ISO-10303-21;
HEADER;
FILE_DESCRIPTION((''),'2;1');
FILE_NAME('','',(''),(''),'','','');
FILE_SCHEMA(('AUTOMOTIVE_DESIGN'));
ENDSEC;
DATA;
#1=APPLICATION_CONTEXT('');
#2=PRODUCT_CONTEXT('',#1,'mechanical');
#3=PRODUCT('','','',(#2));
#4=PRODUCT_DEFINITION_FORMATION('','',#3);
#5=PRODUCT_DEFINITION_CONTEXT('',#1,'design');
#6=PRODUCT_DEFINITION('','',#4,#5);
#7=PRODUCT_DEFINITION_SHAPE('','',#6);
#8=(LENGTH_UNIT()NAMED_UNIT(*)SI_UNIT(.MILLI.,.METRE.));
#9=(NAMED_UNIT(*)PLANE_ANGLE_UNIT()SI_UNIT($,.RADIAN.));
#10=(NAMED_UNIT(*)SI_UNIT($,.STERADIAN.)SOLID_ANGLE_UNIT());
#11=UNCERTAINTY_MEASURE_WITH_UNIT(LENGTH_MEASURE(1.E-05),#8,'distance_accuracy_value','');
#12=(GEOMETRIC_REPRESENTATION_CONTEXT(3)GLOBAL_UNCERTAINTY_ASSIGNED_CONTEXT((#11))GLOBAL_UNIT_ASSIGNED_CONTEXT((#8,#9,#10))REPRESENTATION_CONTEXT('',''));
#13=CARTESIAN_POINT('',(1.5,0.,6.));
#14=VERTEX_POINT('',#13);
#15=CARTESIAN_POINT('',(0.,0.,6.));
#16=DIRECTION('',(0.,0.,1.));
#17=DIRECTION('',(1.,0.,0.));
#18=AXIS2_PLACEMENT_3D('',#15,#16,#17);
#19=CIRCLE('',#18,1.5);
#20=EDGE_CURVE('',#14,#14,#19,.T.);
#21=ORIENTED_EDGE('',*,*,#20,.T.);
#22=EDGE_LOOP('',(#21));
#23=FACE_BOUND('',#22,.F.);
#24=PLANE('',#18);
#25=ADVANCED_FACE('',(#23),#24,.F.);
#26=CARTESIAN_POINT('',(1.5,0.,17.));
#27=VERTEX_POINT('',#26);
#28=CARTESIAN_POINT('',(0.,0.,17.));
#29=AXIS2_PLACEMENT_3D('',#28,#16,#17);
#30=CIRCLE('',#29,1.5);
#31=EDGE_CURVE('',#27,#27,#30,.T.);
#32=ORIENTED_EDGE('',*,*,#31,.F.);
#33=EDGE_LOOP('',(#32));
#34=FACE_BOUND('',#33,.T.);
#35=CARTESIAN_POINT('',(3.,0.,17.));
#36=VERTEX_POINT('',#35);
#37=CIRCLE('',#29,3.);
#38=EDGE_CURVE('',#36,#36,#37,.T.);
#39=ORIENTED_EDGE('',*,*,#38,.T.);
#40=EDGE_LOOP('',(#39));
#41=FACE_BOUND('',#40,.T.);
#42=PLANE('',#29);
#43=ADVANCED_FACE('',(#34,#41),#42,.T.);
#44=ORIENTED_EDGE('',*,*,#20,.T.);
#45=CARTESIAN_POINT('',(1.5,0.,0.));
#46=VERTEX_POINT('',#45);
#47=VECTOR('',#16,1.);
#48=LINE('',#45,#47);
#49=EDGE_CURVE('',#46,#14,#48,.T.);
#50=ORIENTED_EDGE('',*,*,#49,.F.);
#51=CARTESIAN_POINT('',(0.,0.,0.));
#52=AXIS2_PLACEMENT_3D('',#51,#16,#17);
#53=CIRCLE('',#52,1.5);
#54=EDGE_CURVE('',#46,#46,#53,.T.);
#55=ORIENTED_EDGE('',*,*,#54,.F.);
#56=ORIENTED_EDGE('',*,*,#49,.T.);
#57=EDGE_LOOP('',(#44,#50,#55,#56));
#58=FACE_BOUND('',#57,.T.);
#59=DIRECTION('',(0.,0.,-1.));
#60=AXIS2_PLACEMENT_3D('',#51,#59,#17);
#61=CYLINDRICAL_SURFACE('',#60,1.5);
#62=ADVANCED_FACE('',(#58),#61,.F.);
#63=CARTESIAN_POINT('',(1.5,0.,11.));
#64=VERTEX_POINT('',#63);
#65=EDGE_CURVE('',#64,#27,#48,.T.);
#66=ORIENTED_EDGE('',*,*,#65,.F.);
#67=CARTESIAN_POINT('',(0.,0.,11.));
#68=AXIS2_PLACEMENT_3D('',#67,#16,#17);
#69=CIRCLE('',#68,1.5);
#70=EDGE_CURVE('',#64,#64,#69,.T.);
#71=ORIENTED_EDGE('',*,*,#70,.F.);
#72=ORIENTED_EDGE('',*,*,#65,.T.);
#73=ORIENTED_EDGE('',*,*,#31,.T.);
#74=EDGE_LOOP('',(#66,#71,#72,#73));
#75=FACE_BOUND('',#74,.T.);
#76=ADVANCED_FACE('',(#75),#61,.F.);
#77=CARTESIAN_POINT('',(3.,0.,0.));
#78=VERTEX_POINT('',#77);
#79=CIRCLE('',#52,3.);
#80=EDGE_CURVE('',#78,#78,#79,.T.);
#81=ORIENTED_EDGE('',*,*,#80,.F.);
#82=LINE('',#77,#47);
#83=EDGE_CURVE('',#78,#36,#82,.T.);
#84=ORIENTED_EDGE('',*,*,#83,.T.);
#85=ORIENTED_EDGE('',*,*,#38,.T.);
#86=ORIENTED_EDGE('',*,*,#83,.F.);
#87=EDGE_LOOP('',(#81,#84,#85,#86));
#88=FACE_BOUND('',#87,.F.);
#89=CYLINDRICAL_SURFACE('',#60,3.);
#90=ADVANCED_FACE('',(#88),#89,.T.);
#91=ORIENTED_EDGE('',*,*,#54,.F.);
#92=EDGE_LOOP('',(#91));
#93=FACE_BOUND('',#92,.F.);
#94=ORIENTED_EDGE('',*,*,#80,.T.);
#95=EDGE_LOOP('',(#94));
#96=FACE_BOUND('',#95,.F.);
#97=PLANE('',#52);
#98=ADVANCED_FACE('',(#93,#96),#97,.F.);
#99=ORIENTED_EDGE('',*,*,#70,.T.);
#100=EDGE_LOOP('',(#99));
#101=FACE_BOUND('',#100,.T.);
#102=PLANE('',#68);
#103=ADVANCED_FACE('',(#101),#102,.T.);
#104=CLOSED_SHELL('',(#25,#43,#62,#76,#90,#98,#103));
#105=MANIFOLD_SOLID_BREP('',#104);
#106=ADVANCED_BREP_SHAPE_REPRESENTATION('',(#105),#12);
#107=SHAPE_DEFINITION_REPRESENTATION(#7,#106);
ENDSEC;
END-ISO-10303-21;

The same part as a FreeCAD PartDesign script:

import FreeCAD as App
import Part
import Sketcher

V = App.Vector
Q = App.Units.Quantity

doc = App.newDocument("Part")
params = doc.addObject("Spreadsheet::Sheet", "Params")
for row, (alias, value) in enumerate([
    ("sketch1_diameter", "6 mm"),
    ("sketch1_diameter2", "3 mm"),
    ("pad1_length", "17 mm"),
    ("sketch2_diameter", "3 mm"),
    ("pad2_length", "5 mm"),
], start=1):
    params.set(f"A{row}", alias)
    params.set(f"B{row}", "=" + value)
    params.setAlias(f"B{row}", alias)

body = doc.addObject("PartDesign::Body", "Body")

sketch1 = body.newObject("Sketcher::SketchObject", "Sketch")
sketch1.AttachmentSupport = (doc.getObject("XY_Plane"), [""])
sketch1.MapMode = "FlatFace"
sketch1.addGeometry([
    Part.Circle(V(0, 0, 0), V(0, 0, 1), 3),
    Part.Circle(V(0, 0, 0), V(0, 0, 1), 1.5),
], False)
sketch1.addConstraint([
    Sketcher.Constraint("Coincident", 0, 3, -1, 1),
    Sketcher.Constraint("Coincident", 1, 3, -1, 1),
    Sketcher.Constraint("Diameter", 0, Q("6 mm")),
    Sketcher.Constraint("Diameter", 1, Q("3 mm")),
])
sketch1.setExpression("Constraints[2]", "Params.sketch1_diameter")
sketch1.setExpression("Constraints[3]", "Params.sketch1_diameter2")
pad1 = body.newObject("PartDesign::Pad", "Pad")
pad1.Profile = sketch1
pad1.setExpression("Length", "Params.pad1_length")

sketch2 = body.newObject("Sketcher::SketchObject", "Sketch001")
sketch2.AttachmentSupport = (doc.getObject("XY_Plane"), [""])
sketch2.MapMode = "FlatFace"
sketch2.AttachmentOffset = App.Placement(V(0, 0, 11), App.Rotation())
sketch2.addGeometry(Part.Circle(V(0, 0, 0), V(0, 0, 1), 1.5), False)
sketch2.addConstraint([
    Sketcher.Constraint("Coincident", 0, 3, -1, 1),
    Sketcher.Constraint("Diameter", 0, Q("3 mm")),
])
sketch2.setExpression("Constraints[1]", "Params.sketch2_diameter")
pad2 = body.newObject("PartDesign::Pad", "Pad001")
pad2.Profile = sketch2
pad2.setExpression("Length", "Params.pad2_length")
pad2.Reversed = True

doc.recompute()
